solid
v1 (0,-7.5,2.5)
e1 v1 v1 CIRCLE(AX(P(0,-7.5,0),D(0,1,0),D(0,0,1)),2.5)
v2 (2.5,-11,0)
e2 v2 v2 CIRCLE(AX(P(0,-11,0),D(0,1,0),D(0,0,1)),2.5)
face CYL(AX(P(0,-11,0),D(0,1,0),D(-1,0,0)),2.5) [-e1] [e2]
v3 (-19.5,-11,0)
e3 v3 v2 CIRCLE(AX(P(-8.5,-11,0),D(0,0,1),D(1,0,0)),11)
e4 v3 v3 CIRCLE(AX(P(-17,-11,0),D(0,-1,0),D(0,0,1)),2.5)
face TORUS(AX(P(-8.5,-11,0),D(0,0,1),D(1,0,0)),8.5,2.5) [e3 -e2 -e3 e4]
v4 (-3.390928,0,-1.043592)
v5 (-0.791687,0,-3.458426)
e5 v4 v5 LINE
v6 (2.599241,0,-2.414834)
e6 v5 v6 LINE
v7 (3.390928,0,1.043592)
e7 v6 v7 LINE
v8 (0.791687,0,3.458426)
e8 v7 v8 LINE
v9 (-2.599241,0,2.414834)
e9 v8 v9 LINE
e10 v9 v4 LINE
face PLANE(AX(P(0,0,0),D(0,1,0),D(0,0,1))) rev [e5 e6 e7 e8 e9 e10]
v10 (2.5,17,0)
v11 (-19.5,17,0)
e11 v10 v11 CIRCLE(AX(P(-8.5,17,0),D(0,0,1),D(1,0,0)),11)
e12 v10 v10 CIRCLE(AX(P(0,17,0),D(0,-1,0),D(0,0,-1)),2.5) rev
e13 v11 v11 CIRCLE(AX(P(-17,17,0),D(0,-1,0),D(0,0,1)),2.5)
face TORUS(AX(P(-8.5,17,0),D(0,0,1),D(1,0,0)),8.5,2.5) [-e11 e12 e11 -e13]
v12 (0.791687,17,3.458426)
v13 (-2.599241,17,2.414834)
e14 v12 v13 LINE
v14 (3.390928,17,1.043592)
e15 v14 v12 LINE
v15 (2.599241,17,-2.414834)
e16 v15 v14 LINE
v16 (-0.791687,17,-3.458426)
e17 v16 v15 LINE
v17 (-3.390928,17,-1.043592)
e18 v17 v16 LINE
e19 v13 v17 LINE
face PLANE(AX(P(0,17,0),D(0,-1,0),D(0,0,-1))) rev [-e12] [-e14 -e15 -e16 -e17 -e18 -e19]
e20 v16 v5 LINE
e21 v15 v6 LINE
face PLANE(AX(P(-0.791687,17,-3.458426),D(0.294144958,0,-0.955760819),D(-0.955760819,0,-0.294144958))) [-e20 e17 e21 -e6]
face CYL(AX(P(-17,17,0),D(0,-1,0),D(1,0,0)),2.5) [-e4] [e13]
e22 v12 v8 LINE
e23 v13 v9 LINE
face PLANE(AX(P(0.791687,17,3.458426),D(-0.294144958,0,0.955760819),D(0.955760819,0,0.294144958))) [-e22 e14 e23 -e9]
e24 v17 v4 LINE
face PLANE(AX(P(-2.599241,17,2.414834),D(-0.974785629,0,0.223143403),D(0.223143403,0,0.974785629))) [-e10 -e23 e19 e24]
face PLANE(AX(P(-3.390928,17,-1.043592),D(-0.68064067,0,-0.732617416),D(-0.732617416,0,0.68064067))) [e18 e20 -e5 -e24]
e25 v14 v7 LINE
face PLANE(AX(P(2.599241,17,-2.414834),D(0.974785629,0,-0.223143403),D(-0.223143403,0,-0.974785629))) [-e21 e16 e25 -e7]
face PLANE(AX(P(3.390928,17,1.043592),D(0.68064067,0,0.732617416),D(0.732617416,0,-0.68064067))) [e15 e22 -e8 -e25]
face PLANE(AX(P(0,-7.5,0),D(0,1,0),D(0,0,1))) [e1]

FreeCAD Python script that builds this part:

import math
import FreeCAD as App
import Part
import Sketcher

V = App.Vector
Q = App.Units.Quantity

doc = App.newDocument("Part")
body = doc.addObject("PartDesign::Body", "Body")

# Sketch on XZ plane
sketch1 = body.newObject("Sketcher::SketchObject", "Sketch")
sketch1.AttachmentSupport = (doc.getObject("XZ_Plane"), [""])
sketch1.MapMode = "FlatFace"
sketch1.addGeometry(Part.Circle(V(0, 0, 0), V(0, 0, 1), 2.5), False)
sketch1.addConstraint([
    Sketcher.Constraint("Coincident", 0, 3, -1, 1),
    Sketcher.Constraint("Diameter", 0, Q("5 mm")),
])

# Sketch on XY plane
sketch2 = body.newObject("Sketcher::SketchObject", "Sketch001")
sketch2.AttachmentSupport = (doc.getObject("XY_Plane"), [""])
sketch2.MapMode = "FlatFace"
sketch2.addGeometry([
    Part.LineSegment(V(0, 0, 0), V(0, 17, 0)),  # 0
    Part.ArcOfCircle(Part.Circle(V(-8.5, 17, 0), V(0, 0, 1), 8.5), math.radians(0), math.radians(180)),  # 1
    Part.LineSegment(V(-17, 17, 0), V(-17, -11, 0)),  # 2
    Part.ArcOfCircle(Part.Circle(V(-8.5, -11, 0), V(0, 0, 1), 8.5), math.radians(180), math.radians(360)),  # 3
    Part.LineSegment(V(0, -11, 0), V(0, -7.5, 0)),  # 4
], False)
sketch2.addConstraint([
    Sketcher.Constraint("Tangent", 0, 2, 1, 1),
    Sketcher.Constraint("Tangent", 1, 2, 2, 1),
    Sketcher.Constraint("Tangent", 2, 2, 3, 1),
    Sketcher.Constraint("Tangent", 3, 2, 4, 1),
    Sketcher.Constraint("Vertical", 0),
    Sketcher.Constraint("Vertical", 2),
    Sketcher.Constraint("Vertical", 4),
    Sketcher.Constraint("Coincident", 0, 1, -1, 1),
    Sketcher.Constraint("Equal", 1, 3),
    Sketcher.Constraint("Radius", 1, Q("8.5 mm")),
    Sketcher.Constraint("DistanceY", 0, 1, 0, 2, Q("17 mm")),
    Sketcher.Constraint("DistanceY", 2, 2, 2, 1, Q("28 mm")),
    Sketcher.Constraint("DistanceY", 4, 1, 4, 2, Q("3.5 mm")),
])
doc.recompute()

additivepipe = body.newObject("PartDesign::AdditivePipe", "AdditivePipe")
additivepipe.Profile = sketch1
additivepipe.Spine = (sketch2, ["Edge1", "Edge2", "Edge3", "Edge4", "Edge5"])

# Sketch on XZ plane
sketch3 = body.newObject("Sketcher::SketchObject", "Sketch002")
sketch3.AttachmentSupport = (doc.getObject("XZ_Plane"), [""])
sketch3.MapMode = "FlatFace"
sketch3.addGeometry([
    Part.LineSegment(V(3.390928, 1.043592, 0), V(0.791687, 3.458426, 0)),  # 0
    Part.LineSegment(V(0.791687, 3.458426, 0), V(-2.599241, 2.414834, 0)),  # 1
    Part.LineSegment(V(-2.599241, 2.414834, 0), V(-3.390928, -1.043592, 0)),  # 2
    Part.LineSegment(V(-3.390928, -1.043592, 0), V(-0.791687, -3.458426, 0)),  # 3
    Part.LineSegment(V(-0.791687, -3.458426, 0), V(2.599241, -2.414834, 0)),  # 4
    Part.LineSegment(V(2.599241, -2.414834, 0), V(3.390928, 1.043592, 0)),  # 5
], False)
sketch3.addConstraint([
    Sketcher.Constraint("Coincident", 0, 2, 1, 1),
    Sketcher.Constraint("Coincident", 1, 2, 2, 1),
    Sketcher.Constraint("Coincident", 2, 2, 3, 1),
    Sketcher.Constraint("Coincident", 3, 2, 4, 1),
    Sketcher.Constraint("Coincident", 4, 2, 5, 1),
    Sketcher.Constraint("Coincident", 5, 2, 0, 1),
    Sketcher.Constraint("Symmetric", 0, 2, 3, 2, -1, 1),
    Sketcher.Constraint("Symmetric", 1, 2, 4, 2, -1, 1),
    Sketcher.Constraint("Symmetric", 2, 2, 5, 2, -1, 1),
    Sketcher.Constraint("Equal", 0, 1),
    Sketcher.Constraint("Equal", 1, 2),
    Sketcher.Constraint("DistanceX", 1, 2, -1, 1, Q("2.599241 mm")),
    Sketcher.Constraint("DistanceX", 2, 2, -1, 1, Q("3.390928 mm")),
    Sketcher.Constraint("DistanceX", 1, 2, 0, 2, Q("3.390928 mm")),
    Sketcher.Constraint("DistanceY", 2, 2, 0, 2, Q("4.502018 mm")),
])
pad1 = body.newObject("PartDesign::Pad", "Pad")
pad1.Profile = sketch3
pad1.Length = 17
pad1.Reversed = True

doc.recompute()
